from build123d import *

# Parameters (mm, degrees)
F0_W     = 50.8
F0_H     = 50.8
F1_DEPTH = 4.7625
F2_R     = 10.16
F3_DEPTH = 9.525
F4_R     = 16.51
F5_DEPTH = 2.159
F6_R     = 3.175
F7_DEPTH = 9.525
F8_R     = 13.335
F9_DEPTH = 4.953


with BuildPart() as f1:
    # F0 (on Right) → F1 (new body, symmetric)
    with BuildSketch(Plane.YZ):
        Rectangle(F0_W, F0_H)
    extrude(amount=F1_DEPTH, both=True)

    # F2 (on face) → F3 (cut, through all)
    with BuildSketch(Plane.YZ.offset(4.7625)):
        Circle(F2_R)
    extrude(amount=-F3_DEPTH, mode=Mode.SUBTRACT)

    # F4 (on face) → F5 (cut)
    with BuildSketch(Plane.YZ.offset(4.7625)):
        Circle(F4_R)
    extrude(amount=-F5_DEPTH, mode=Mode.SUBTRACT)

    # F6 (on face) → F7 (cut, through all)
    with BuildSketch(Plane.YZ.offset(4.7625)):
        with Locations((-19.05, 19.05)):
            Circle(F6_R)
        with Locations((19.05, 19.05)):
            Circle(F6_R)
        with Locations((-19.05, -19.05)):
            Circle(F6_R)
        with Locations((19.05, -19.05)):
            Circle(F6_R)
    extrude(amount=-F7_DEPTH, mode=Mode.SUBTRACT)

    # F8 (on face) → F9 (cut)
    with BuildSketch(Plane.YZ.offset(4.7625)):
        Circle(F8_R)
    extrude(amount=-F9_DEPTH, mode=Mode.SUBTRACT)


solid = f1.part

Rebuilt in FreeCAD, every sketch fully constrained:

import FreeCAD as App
import Part
import Sketcher
from FreeCAD import Vector
Q = App.Units.Quantity


def add_polygon(sketch, points):
    """Adds a closed chain of lines whose ends are joined by coincident constraints."""
    first, n = sketch.GeometryCount, len(points)
    for a, b in zip(points, points[1:] + points[:1]):
        sketch.addGeometry(Part.LineSegment(App.Vector(*a, 0), App.Vector(*b, 0)), False)
    for i in range(n):
        sketch.addConstraint(Sketcher.Constraint("Coincident", first + i, 2, first + (i + 1) % n, 1))

doc = App.newDocument("Part")
body = doc.addObject("PartDesign::Body", "Body")

# Sketch on YZ plane
sketch1 = body.newObject("Sketcher::SketchObject", "Sketch")
sketch1.AttachmentSupport = (doc.getObject("YZ_Plane"), [""])
sketch1.MapMode = "FlatFace"
add_polygon(sketch1, [(-25.4, 25.4), (-25.4, -25.4), (25.4, -25.4), (25.4, 25.4)])  # lines 0-3
sketch1.addConstraint([
    Sketcher.Constraint("Vertical", 0),
    Sketcher.Constraint("Horizontal", 1),
    Sketcher.Constraint("Vertical", 2),
    Sketcher.Constraint("Horizontal", 3),
    Sketcher.Constraint("Symmetric", 0, 2, 2, 2, -1, 1),
    Sketcher.Constraint("Equal", 3, 0),
    Sketcher.Constraint("DistanceX", 1, 1, 1, 2, Q("2 in")),
])
pad1 = body.newObject("PartDesign::Pad", "Pad")
pad1.Profile = sketch1
pad1.Length = Q("0.375 in")
pad1.Midplane = True

# Sketch on YZ plane
sketch2 = body.newObject("Sketcher::SketchObject", "Sketch001")
sketch2.AttachmentSupport = (doc.getObject("YZ_Plane"), [""])
sketch2.MapMode = "FlatFace"
sketch2.AttachmentOffset = App.Placement(Vector(0, 0, 0.1875 * 25.4), App.Rotation())
sketch2.addGeometry(Part.Circle(Vector(0, 0, 0), Vector(0, 0, 1), 10.16), False)
sketch2.addConstraint([
    Sketcher.Constraint("Coincident", 0, 3, -1, 1),
    Sketcher.Constraint("Diameter", 0, Q("0.8 in")),
])
pocket1 = body.newObject("PartDesign::Pocket", "Pocket")
pocket1.Profile = sketch2
pocket1.Type = "ThroughAll"

# Sketch on YZ plane
sketch3 = body.newObject("Sketcher::SketchObject", "Sketch002")
sketch3.AttachmentSupport = (doc.getObject("YZ_Plane"), [""])
sketch3.MapMode = "FlatFace"
sketch3.AttachmentOffset = App.Placement(Vector(0, 0, 0.1875 * 25.4), App.Rotation())
sketch3.addGeometry(Part.Circle(Vector(0, 0, 0), Vector(0, 0, 1), 16.51), False)
sketch3.addConstraint([
    Sketcher.Constraint("Coincident", 0, 3, -1, 1),
    Sketcher.Constraint("Diameter", 0, Q("1.3 in")),
])
pocket2 = body.newObject("PartDesign::Pocket", "Pocket001")
pocket2.Profile = sketch3
pocket2.Length = Q("0.085 in")

# Sketch on YZ plane
sketch4 = body.newObject("Sketcher::SketchObject", "Sketch003")
sketch4.AttachmentSupport = (doc.getObject("YZ_Plane"), [""])
sketch4.MapMode = "FlatFace"
sketch4.AttachmentOffset = App.Placement(Vector(0, 0, 0.1875 * 25.4), App.Rotation())
sketch4.addGeometry([
    Part.Circle(Vector(-19.05, 19.05, 0), Vector(0, 0, 1), 3.175),
    Part.Circle(Vector(19.05, 19.05, 0), Vector(0, 0, 1), 3.175),
    Part.Circle(Vector(-19.05, -19.05, 0), Vector(0, 0, 1), 3.175),
    Part.Circle(Vector(19.05, -19.05, 0), Vector(0, 0, 1), 3.175),
], False)
sketch4.addConstraint([
    Sketcher.Constraint("Equal", 0, 1),
    Sketcher.Constraint("Equal", 1, 2),
    Sketcher.Constraint("Equal", 2, 3),
    Sketcher.Constraint("Symmetric", 1, 3, 2, 3, -1, 1),
    Sketcher.Constraint("Symmetric", 0, 3, 3, 3, -1, 1),
    Sketcher.Constraint("Symmetric", 0, 3, 1, 3, -2),
    Sketcher.Constraint("Diameter", 0, Q("0.25 in")),
    Sketcher.Constraint("DistanceX", 0, 3, 1, 3, Q("1.5 in")),
    Sketcher.Constraint("DistanceY", 2, 3, 0, 3, Q("1.5 in")),
])
pocket3 = body.newObject("PartDesign::Pocket", "Pocket002")
pocket3.Profile = sketch4
pocket3.Type = "ThroughAll"

# Sketch on YZ plane
sketch5 = body.newObject("Sketcher::SketchObject", "Sketch004")
sketch5.AttachmentSupport = (doc.getObject("YZ_Plane"), [""])
sketch5.MapMode = "FlatFace"
sketch5.AttachmentOffset = App.Placement(Vector(0, 0, 0.1875 * 25.4), App.Rotation())
sketch5.addGeometry(Part.Circle(Vector(0, 0, 0), Vector(0, 0, 1), 13.335), False)
sketch5.addConstraint([
    Sketcher.Constraint("Coincident", 0, 3, -1, 1),
    Sketcher.Constraint("Diameter", 0, Q("1.05 in")),
])
pocket4 = body.newObject("PartDesign::Pocket", "Pocket003")
pocket4.Profile = sketch5
pocket4.Length = Q("0.195 in")

doc.recompute()
